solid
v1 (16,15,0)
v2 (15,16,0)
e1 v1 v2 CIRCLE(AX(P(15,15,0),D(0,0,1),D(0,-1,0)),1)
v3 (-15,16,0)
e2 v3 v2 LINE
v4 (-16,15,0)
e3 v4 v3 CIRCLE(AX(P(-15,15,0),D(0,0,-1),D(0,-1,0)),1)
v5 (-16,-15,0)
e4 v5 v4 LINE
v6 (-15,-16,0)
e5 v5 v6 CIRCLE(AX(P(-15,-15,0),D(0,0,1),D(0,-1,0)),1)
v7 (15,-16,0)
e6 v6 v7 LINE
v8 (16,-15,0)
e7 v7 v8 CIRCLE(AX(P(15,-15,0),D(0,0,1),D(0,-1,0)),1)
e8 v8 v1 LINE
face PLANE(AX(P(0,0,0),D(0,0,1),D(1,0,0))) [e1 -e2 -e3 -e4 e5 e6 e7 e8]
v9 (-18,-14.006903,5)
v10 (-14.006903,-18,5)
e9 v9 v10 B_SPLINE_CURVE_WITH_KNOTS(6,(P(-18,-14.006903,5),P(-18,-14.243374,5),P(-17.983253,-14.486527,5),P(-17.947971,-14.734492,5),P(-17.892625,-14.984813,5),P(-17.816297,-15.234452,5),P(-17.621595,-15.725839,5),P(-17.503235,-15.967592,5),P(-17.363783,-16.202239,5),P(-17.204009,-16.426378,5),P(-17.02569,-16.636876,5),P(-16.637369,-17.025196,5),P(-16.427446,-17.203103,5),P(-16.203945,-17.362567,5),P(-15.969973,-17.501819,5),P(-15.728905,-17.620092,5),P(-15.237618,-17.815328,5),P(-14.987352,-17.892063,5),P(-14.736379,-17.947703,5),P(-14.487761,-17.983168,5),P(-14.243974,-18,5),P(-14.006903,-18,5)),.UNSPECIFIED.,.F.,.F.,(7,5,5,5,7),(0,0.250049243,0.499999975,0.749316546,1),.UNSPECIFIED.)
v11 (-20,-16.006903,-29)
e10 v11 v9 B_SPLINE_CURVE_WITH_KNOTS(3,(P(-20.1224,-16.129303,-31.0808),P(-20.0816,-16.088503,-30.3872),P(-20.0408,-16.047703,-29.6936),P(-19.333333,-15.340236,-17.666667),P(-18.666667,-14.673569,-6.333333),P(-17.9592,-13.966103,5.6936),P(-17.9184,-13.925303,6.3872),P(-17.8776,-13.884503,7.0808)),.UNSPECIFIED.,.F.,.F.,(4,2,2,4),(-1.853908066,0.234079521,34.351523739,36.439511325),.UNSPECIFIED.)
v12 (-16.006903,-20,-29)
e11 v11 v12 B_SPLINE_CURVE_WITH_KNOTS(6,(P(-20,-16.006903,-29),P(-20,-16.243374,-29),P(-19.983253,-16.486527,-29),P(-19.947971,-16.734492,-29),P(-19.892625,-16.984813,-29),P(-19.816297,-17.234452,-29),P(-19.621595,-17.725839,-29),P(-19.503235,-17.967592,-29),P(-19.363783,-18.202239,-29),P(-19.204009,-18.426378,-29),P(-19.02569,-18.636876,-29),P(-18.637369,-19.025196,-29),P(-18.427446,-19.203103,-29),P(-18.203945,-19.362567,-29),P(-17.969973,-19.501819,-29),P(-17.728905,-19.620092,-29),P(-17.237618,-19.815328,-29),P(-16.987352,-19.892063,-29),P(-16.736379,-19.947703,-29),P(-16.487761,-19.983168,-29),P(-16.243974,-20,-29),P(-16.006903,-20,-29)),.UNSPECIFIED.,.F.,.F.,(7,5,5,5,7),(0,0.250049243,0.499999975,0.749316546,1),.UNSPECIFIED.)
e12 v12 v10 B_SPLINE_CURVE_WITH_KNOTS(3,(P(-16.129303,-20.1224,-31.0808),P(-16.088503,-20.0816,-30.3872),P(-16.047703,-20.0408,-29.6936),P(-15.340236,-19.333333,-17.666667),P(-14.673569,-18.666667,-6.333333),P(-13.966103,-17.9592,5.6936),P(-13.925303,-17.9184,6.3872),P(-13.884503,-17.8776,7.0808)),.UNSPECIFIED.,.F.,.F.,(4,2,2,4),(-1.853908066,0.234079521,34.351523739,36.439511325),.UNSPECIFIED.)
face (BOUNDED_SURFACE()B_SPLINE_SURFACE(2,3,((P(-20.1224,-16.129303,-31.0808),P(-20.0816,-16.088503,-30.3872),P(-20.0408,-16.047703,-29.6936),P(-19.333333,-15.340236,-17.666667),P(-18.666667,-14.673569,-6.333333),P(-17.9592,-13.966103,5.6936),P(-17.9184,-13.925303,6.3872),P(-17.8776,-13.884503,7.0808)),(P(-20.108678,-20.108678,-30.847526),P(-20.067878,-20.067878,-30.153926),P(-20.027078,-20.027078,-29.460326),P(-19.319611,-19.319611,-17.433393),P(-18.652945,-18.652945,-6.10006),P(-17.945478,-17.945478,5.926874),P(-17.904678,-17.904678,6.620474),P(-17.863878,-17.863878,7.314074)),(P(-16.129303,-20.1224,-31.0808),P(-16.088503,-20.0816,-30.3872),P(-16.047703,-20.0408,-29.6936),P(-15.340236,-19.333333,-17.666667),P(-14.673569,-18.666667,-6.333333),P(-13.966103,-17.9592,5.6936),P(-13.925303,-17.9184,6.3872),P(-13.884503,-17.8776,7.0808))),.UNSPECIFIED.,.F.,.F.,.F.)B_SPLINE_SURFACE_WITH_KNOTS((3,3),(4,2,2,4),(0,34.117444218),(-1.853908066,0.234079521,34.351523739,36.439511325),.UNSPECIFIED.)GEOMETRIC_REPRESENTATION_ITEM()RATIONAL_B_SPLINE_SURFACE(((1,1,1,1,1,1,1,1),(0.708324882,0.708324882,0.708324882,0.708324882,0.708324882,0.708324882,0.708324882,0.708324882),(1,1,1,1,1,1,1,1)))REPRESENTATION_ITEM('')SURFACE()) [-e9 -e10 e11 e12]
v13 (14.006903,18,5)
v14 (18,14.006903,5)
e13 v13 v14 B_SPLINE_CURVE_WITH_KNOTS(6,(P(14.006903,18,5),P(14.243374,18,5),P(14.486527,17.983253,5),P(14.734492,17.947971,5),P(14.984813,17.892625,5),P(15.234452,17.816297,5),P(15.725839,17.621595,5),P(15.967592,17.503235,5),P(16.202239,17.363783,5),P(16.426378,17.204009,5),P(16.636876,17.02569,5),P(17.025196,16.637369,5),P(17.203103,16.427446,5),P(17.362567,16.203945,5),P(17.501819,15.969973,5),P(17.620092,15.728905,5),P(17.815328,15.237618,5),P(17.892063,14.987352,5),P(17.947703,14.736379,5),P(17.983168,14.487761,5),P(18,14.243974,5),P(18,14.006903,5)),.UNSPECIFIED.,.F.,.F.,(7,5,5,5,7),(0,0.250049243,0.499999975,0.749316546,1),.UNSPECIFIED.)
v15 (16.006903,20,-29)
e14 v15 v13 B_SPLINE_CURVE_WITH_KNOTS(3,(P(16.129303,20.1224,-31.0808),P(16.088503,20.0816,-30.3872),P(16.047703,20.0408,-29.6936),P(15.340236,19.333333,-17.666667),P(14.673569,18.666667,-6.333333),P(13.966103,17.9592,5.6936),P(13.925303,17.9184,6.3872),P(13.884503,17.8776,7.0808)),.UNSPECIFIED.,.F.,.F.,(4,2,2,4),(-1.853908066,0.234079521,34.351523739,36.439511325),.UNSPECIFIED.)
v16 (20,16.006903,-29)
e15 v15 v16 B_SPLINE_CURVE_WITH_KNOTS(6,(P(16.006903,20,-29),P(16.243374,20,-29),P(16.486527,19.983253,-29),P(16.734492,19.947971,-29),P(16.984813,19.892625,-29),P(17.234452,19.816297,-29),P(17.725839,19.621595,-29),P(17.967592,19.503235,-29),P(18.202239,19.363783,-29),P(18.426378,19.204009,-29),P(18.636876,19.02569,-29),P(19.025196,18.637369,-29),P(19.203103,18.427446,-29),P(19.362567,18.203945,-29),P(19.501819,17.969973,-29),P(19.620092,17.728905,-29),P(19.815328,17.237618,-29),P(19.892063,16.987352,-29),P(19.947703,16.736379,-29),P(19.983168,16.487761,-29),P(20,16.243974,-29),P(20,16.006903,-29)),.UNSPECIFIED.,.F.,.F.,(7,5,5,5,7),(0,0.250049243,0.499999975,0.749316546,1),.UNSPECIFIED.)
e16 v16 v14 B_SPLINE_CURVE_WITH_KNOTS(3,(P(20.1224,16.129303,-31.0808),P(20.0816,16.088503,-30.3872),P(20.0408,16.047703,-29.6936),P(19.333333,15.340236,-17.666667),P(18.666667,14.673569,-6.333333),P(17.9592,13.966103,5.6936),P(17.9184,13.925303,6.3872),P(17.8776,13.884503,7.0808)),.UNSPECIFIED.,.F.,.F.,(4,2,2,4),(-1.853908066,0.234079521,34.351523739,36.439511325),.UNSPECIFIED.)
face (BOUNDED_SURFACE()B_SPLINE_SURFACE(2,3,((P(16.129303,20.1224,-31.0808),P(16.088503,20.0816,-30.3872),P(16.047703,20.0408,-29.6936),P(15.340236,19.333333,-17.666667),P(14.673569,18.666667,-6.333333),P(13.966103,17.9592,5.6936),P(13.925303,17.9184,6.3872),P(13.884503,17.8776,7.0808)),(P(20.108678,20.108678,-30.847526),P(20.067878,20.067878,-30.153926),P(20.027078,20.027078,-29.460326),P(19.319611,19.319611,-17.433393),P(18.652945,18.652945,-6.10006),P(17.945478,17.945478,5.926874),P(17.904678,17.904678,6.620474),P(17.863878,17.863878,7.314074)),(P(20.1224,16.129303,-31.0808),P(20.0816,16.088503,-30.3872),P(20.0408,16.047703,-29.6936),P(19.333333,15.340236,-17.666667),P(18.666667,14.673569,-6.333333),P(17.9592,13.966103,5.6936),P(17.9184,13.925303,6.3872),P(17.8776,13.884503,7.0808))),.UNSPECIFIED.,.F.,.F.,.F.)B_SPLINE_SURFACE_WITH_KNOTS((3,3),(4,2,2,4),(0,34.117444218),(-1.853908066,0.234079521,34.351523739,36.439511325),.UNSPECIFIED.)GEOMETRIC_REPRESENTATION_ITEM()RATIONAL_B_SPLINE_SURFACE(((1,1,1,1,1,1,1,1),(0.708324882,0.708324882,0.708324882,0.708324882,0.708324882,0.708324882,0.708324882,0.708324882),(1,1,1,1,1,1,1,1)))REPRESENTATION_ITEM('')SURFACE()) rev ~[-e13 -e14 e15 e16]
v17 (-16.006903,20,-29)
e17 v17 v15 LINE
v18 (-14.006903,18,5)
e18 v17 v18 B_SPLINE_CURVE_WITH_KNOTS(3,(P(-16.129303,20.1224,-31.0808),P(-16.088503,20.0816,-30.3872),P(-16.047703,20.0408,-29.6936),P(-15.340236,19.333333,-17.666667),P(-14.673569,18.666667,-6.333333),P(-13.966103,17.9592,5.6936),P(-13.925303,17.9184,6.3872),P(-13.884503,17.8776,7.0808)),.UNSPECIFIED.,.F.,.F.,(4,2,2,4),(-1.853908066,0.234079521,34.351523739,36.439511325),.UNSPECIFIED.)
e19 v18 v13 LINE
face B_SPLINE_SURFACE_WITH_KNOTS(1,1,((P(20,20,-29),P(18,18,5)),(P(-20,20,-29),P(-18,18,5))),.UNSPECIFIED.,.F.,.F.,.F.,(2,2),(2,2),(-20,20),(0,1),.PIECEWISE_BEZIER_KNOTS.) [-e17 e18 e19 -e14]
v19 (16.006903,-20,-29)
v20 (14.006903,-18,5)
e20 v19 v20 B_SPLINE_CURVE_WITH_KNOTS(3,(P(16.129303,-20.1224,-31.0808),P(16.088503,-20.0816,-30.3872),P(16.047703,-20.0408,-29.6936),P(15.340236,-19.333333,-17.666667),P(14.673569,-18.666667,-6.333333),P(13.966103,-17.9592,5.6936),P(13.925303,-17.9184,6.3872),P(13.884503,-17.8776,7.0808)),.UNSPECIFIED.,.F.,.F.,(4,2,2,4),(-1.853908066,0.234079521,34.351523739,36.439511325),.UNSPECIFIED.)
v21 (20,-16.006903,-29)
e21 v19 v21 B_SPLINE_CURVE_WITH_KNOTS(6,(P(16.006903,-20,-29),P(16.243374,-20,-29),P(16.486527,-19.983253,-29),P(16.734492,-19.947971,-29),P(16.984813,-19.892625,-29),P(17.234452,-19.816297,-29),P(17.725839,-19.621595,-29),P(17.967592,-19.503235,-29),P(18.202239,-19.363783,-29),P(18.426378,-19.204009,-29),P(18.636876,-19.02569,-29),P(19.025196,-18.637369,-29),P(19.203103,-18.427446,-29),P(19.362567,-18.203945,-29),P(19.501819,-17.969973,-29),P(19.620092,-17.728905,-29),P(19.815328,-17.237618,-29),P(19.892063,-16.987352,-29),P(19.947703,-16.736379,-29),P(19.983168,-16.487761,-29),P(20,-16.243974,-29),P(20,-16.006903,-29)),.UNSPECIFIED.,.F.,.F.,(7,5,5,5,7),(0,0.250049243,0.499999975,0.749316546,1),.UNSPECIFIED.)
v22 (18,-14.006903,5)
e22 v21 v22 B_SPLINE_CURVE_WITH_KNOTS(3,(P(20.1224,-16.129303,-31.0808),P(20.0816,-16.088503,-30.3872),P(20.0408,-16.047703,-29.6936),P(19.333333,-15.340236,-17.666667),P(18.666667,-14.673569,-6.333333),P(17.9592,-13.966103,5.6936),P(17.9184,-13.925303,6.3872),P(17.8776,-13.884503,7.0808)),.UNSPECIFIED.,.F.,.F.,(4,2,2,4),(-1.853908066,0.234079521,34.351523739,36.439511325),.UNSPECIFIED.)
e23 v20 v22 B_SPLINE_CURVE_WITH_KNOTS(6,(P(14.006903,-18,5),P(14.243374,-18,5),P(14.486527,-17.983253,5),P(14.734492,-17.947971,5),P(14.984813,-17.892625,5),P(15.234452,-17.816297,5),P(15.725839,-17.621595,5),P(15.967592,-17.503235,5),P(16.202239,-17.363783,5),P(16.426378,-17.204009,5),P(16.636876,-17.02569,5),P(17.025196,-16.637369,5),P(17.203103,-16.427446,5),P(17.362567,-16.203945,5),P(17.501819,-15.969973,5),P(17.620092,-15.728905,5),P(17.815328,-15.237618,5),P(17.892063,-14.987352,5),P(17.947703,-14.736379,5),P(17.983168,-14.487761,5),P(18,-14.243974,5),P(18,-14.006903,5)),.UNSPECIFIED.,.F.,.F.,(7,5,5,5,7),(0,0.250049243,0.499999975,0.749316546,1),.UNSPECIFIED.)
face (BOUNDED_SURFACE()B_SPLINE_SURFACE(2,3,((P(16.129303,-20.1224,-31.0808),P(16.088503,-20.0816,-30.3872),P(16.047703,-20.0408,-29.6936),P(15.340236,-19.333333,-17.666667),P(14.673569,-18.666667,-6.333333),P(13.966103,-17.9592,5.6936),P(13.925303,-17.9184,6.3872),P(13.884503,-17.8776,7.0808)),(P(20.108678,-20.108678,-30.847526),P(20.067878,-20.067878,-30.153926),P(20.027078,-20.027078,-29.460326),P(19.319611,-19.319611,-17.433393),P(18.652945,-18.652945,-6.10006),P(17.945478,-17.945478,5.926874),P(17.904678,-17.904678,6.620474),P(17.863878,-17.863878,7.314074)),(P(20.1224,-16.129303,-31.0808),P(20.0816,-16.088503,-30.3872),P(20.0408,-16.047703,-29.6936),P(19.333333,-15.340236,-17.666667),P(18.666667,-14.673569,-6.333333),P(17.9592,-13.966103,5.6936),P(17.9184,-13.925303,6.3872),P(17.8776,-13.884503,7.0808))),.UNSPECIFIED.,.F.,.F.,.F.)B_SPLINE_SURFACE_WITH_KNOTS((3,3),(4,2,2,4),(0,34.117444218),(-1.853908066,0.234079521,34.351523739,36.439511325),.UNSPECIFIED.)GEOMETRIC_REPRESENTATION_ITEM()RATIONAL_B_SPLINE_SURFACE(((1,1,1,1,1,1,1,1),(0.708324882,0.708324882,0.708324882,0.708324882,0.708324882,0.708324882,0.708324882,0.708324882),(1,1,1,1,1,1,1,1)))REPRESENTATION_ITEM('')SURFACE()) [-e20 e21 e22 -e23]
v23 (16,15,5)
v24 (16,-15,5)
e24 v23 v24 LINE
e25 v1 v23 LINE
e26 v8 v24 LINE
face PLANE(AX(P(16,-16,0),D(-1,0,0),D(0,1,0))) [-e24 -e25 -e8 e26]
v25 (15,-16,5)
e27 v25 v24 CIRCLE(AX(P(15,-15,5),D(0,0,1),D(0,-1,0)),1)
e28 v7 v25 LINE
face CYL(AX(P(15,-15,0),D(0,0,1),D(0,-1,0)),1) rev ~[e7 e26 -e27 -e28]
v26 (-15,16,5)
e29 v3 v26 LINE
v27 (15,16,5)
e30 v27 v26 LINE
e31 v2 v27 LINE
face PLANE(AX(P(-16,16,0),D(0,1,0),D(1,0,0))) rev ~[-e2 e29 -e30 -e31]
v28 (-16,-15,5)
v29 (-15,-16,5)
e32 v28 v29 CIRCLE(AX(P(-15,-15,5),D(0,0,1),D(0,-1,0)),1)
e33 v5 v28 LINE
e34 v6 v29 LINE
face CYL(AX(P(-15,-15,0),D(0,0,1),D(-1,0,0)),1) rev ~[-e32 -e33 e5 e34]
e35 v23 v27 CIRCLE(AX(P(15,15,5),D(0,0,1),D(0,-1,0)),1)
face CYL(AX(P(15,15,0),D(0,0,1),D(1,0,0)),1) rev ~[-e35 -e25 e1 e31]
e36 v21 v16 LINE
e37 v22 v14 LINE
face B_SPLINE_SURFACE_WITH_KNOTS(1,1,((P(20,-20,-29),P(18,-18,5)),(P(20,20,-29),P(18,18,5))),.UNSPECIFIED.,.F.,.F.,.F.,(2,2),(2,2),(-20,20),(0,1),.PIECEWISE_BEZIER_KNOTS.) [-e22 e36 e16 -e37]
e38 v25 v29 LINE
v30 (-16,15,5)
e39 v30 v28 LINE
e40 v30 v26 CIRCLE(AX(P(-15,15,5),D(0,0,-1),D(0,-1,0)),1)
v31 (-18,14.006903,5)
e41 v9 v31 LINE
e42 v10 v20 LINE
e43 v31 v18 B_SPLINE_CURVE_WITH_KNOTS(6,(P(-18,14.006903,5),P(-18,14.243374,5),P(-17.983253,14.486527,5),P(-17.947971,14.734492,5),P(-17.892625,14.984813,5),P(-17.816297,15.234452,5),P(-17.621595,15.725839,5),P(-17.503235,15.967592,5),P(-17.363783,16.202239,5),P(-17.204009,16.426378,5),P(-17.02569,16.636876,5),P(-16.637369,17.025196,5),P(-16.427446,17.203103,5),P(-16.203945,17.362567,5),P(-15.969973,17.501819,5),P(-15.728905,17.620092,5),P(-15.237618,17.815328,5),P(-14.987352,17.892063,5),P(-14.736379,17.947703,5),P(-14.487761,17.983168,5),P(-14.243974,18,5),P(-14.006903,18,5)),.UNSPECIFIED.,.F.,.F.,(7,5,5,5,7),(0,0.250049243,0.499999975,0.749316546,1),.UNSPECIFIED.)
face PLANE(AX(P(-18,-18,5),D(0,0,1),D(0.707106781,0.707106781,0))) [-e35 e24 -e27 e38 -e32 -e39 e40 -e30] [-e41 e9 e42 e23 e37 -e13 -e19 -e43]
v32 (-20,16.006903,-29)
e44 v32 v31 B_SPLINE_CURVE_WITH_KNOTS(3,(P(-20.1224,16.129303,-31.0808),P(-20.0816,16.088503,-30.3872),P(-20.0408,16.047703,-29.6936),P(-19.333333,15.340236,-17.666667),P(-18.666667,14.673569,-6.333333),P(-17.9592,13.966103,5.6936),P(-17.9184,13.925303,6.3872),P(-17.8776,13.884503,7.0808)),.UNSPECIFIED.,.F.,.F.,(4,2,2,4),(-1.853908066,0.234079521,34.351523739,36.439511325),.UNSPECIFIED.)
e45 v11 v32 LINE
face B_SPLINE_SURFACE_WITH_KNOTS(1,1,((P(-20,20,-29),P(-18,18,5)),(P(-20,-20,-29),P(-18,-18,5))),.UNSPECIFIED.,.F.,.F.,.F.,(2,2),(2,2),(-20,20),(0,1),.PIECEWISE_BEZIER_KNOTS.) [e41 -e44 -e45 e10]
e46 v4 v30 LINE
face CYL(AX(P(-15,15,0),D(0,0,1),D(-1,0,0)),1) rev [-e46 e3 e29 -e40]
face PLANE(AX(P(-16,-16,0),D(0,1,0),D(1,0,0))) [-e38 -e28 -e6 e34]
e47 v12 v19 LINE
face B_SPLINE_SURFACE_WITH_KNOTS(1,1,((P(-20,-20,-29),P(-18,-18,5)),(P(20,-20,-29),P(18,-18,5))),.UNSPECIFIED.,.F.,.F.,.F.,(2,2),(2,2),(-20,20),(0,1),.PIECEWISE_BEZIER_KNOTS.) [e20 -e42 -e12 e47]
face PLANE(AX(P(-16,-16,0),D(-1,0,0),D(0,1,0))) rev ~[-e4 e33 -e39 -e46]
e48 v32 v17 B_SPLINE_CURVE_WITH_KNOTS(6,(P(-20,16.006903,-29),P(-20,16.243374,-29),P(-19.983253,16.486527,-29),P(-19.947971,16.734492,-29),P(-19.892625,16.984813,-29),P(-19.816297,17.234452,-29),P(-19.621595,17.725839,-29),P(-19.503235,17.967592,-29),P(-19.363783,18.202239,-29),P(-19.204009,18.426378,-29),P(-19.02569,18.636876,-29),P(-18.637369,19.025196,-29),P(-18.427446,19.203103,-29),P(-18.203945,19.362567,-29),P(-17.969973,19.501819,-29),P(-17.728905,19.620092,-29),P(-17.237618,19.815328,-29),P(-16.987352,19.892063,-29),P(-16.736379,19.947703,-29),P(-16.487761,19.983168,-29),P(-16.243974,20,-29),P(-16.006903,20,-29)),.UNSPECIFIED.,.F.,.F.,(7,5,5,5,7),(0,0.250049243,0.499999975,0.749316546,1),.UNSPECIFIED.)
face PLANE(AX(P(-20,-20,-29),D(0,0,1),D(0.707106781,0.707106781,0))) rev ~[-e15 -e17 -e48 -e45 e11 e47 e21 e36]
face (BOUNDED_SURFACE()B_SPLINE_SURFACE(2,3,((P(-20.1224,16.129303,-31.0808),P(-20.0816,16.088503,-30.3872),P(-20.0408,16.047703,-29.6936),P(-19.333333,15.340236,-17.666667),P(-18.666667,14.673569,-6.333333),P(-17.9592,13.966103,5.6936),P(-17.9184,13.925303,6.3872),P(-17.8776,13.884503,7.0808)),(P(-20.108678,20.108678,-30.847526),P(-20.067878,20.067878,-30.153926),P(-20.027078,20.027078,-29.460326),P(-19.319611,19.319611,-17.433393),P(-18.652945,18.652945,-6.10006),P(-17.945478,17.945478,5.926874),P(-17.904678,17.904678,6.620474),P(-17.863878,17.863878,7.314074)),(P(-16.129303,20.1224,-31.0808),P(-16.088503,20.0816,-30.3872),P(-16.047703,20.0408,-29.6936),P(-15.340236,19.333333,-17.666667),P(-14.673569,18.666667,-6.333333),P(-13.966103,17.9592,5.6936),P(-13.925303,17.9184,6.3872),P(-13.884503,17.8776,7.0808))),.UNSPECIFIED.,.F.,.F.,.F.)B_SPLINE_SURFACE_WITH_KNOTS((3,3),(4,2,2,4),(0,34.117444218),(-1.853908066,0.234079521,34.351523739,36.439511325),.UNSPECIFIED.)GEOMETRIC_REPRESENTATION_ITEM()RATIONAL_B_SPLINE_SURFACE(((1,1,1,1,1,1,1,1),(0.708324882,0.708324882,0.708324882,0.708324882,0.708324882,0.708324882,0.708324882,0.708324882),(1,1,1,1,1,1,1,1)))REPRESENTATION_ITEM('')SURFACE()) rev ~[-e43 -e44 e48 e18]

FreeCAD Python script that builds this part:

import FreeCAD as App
import Part
import Sketcher
from FreeCAD import Vector


def edges_at(feature, points):
    """Names of the edges that pass closest to the given points."""
    edges = feature.Shape.Edges
    near = lambda p: min(range(len(edges)), key=lambda i: edges[i].distToShape(Part.Vertex(*p))[0])
    return sorted({f"Edge{near(p) + 1}" for p in points})

doc = App.newDocument("Part")
body = doc.addObject("PartDesign::Body", "Body")

sketch1 = body.newObject("Sketcher::SketchObject", "Sketch")
sketch1.AttachmentSupport = (doc.getObject("XY_Plane"), [""])
sketch1.MapMode = "FlatFace"
sketch1.AttachmentOffset = App.Placement(Vector(0, 0, -29), App.Rotation())
sketch1.addGeometry([
    Part.LineSegment(Vector(-20, 20, 0), Vector(-20, -20, 0)),
    Part.LineSegment(Vector(-20, -20, 0), Vector(20, -20, 0)),
    Part.LineSegment(Vector(20, -20, 0), Vector(20, 20, 0)),
    Part.LineSegment(Vector(20, 20, 0), Vector(-20, 20, 0)),
], False)
sketch1.addConstraint([
    Sketcher.Constraint("Coincident", 0, 2, 1, 1),
    Sketcher.Constraint("Coincident", 1, 2, 2, 1),
    Sketcher.Constraint("Coincident", 2, 2, 3, 1),
    Sketcher.Constraint("Coincident", 3, 2, 0, 1),
    Sketcher.Constraint("Vertical", 0),
    Sketcher.Constraint("Horizontal", 1),
    Sketcher.Constraint("Vertical", 2),
    Sketcher.Constraint("Horizontal", 3),
    Sketcher.Constraint("Symmetric", 0, 2, 2, 2, -1, 1),
    Sketcher.Constraint("Equal", 3, 0),
    Sketcher.Constraint("DistanceX", 1, 1, 1, 2, 40.0),
])

sketch2 = body.newObject("Sketcher::SketchObject", "Sketch001")
sketch2.AttachmentSupport = (doc.getObject("XY_Plane"), [""])
sketch2.MapMode = "FlatFace"
sketch2.AttachmentOffset = App.Placement(Vector(0, 0, 5), App.Rotation())
sketch2.addGeometry([
    Part.LineSegment(Vector(-18, 18, 0), Vector(-18, -18, 0)),
    Part.LineSegment(Vector(-18, -18, 0), Vector(18, -18, 0)),
    Part.LineSegment(Vector(18, -18, 0), Vector(18, 18, 0)),
    Part.LineSegment(Vector(18, 18, 0), Vector(-18, 18, 0)),
], False)
sketch2.addConstraint([
    Sketcher.Constraint("Coincident", 0, 2, 1, 1),
    Sketcher.Constraint("Coincident", 1, 2, 2, 1),
    Sketcher.Constraint("Coincident", 2, 2, 3, 1),
    Sketcher.Constraint("Coincident", 3, 2, 0, 1),
    Sketcher.Constraint("Vertical", 0),
    Sketcher.Constraint("Horizontal", 1),
    Sketcher.Constraint("Vertical", 2),
    Sketcher.Constraint("Horizontal", 3),
    Sketcher.Constraint("Symmetric", 0, 2, 2, 2, -1, 1),
    Sketcher.Constraint("Equal", 3, 0),
    Sketcher.Constraint("DistanceX", 1, 1, 1, 2, 36.0),
])

additiveloft = body.newObject("PartDesign::AdditiveLoft", "AdditiveLoft")
additiveloft.Profile = sketch1
additiveloft.Sections = [sketch2]

sketch3 = body.newObject("Sketcher::SketchObject", "Sketch002")
sketch3.AttachmentSupport = (doc.getObject("XY_Plane"), [""])
sketch3.MapMode = "FlatFace"
sketch3.addGeometry([
    Part.LineSegment(Vector(-16, 16, 0), Vector(-16, -16, 0)),
    Part.LineSegment(Vector(-16, -16, 0), Vector(16, -16, 0)),
    Part.LineSegment(Vector(16, -16, 0), Vector(16, 16, 0)),
    Part.LineSegment(Vector(16, 16, 0), Vector(-16, 16, 0)),
], False)
sketch3.addConstraint([
    Sketcher.Constraint("Coincident", 0, 2, 1, 1),
    Sketcher.Constraint("Coincident", 1, 2, 2, 1),
    Sketcher.Constraint("Coincident", 2, 2, 3, 1),
    Sketcher.Constraint("Coincident", 3, 2, 0, 1),
    Sketcher.Constraint("Vertical", 0),
    Sketcher.Constraint("Horizontal", 1),
    Sketcher.Constraint("Vertical", 2),
    Sketcher.Constraint("Horizontal", 3),
    Sketcher.Constraint("Symmetric", 0, 2, 2, 2, -1, 1),
    Sketcher.Constraint("Equal", 3, 0),
    Sketcher.Constraint("DistanceX", 1, 1, 1, 2, 32.0),
])
pocket1 = body.newObject("PartDesign::Pocket", "Pocket")
pocket1.Profile = sketch3
pocket1.Length = 25
pocket1.Reversed = True
doc.recompute()

fillet = body.newObject("PartDesign::Fillet", "Fillet")
fillet.Base = (pocket1, edges_at(pocket1, [
    (19, -19, -12),
    (19, 19, -12),
    (-19, -19, -12),
    (-19, 19, -12),
]))
fillet.Radius = 4
doc.recompute()

fillet2 = body.newObject("PartDesign::Fillet", "Fillet001")
fillet2.Base = (fillet, edges_at(fillet, [
    (-16, 16, 2.5),
    (16, 16, 2.5),
    (16, -16, 2.5),
    (-16, -16, 2.5),
]))
fillet2.Radius = 1

doc.recompute()
